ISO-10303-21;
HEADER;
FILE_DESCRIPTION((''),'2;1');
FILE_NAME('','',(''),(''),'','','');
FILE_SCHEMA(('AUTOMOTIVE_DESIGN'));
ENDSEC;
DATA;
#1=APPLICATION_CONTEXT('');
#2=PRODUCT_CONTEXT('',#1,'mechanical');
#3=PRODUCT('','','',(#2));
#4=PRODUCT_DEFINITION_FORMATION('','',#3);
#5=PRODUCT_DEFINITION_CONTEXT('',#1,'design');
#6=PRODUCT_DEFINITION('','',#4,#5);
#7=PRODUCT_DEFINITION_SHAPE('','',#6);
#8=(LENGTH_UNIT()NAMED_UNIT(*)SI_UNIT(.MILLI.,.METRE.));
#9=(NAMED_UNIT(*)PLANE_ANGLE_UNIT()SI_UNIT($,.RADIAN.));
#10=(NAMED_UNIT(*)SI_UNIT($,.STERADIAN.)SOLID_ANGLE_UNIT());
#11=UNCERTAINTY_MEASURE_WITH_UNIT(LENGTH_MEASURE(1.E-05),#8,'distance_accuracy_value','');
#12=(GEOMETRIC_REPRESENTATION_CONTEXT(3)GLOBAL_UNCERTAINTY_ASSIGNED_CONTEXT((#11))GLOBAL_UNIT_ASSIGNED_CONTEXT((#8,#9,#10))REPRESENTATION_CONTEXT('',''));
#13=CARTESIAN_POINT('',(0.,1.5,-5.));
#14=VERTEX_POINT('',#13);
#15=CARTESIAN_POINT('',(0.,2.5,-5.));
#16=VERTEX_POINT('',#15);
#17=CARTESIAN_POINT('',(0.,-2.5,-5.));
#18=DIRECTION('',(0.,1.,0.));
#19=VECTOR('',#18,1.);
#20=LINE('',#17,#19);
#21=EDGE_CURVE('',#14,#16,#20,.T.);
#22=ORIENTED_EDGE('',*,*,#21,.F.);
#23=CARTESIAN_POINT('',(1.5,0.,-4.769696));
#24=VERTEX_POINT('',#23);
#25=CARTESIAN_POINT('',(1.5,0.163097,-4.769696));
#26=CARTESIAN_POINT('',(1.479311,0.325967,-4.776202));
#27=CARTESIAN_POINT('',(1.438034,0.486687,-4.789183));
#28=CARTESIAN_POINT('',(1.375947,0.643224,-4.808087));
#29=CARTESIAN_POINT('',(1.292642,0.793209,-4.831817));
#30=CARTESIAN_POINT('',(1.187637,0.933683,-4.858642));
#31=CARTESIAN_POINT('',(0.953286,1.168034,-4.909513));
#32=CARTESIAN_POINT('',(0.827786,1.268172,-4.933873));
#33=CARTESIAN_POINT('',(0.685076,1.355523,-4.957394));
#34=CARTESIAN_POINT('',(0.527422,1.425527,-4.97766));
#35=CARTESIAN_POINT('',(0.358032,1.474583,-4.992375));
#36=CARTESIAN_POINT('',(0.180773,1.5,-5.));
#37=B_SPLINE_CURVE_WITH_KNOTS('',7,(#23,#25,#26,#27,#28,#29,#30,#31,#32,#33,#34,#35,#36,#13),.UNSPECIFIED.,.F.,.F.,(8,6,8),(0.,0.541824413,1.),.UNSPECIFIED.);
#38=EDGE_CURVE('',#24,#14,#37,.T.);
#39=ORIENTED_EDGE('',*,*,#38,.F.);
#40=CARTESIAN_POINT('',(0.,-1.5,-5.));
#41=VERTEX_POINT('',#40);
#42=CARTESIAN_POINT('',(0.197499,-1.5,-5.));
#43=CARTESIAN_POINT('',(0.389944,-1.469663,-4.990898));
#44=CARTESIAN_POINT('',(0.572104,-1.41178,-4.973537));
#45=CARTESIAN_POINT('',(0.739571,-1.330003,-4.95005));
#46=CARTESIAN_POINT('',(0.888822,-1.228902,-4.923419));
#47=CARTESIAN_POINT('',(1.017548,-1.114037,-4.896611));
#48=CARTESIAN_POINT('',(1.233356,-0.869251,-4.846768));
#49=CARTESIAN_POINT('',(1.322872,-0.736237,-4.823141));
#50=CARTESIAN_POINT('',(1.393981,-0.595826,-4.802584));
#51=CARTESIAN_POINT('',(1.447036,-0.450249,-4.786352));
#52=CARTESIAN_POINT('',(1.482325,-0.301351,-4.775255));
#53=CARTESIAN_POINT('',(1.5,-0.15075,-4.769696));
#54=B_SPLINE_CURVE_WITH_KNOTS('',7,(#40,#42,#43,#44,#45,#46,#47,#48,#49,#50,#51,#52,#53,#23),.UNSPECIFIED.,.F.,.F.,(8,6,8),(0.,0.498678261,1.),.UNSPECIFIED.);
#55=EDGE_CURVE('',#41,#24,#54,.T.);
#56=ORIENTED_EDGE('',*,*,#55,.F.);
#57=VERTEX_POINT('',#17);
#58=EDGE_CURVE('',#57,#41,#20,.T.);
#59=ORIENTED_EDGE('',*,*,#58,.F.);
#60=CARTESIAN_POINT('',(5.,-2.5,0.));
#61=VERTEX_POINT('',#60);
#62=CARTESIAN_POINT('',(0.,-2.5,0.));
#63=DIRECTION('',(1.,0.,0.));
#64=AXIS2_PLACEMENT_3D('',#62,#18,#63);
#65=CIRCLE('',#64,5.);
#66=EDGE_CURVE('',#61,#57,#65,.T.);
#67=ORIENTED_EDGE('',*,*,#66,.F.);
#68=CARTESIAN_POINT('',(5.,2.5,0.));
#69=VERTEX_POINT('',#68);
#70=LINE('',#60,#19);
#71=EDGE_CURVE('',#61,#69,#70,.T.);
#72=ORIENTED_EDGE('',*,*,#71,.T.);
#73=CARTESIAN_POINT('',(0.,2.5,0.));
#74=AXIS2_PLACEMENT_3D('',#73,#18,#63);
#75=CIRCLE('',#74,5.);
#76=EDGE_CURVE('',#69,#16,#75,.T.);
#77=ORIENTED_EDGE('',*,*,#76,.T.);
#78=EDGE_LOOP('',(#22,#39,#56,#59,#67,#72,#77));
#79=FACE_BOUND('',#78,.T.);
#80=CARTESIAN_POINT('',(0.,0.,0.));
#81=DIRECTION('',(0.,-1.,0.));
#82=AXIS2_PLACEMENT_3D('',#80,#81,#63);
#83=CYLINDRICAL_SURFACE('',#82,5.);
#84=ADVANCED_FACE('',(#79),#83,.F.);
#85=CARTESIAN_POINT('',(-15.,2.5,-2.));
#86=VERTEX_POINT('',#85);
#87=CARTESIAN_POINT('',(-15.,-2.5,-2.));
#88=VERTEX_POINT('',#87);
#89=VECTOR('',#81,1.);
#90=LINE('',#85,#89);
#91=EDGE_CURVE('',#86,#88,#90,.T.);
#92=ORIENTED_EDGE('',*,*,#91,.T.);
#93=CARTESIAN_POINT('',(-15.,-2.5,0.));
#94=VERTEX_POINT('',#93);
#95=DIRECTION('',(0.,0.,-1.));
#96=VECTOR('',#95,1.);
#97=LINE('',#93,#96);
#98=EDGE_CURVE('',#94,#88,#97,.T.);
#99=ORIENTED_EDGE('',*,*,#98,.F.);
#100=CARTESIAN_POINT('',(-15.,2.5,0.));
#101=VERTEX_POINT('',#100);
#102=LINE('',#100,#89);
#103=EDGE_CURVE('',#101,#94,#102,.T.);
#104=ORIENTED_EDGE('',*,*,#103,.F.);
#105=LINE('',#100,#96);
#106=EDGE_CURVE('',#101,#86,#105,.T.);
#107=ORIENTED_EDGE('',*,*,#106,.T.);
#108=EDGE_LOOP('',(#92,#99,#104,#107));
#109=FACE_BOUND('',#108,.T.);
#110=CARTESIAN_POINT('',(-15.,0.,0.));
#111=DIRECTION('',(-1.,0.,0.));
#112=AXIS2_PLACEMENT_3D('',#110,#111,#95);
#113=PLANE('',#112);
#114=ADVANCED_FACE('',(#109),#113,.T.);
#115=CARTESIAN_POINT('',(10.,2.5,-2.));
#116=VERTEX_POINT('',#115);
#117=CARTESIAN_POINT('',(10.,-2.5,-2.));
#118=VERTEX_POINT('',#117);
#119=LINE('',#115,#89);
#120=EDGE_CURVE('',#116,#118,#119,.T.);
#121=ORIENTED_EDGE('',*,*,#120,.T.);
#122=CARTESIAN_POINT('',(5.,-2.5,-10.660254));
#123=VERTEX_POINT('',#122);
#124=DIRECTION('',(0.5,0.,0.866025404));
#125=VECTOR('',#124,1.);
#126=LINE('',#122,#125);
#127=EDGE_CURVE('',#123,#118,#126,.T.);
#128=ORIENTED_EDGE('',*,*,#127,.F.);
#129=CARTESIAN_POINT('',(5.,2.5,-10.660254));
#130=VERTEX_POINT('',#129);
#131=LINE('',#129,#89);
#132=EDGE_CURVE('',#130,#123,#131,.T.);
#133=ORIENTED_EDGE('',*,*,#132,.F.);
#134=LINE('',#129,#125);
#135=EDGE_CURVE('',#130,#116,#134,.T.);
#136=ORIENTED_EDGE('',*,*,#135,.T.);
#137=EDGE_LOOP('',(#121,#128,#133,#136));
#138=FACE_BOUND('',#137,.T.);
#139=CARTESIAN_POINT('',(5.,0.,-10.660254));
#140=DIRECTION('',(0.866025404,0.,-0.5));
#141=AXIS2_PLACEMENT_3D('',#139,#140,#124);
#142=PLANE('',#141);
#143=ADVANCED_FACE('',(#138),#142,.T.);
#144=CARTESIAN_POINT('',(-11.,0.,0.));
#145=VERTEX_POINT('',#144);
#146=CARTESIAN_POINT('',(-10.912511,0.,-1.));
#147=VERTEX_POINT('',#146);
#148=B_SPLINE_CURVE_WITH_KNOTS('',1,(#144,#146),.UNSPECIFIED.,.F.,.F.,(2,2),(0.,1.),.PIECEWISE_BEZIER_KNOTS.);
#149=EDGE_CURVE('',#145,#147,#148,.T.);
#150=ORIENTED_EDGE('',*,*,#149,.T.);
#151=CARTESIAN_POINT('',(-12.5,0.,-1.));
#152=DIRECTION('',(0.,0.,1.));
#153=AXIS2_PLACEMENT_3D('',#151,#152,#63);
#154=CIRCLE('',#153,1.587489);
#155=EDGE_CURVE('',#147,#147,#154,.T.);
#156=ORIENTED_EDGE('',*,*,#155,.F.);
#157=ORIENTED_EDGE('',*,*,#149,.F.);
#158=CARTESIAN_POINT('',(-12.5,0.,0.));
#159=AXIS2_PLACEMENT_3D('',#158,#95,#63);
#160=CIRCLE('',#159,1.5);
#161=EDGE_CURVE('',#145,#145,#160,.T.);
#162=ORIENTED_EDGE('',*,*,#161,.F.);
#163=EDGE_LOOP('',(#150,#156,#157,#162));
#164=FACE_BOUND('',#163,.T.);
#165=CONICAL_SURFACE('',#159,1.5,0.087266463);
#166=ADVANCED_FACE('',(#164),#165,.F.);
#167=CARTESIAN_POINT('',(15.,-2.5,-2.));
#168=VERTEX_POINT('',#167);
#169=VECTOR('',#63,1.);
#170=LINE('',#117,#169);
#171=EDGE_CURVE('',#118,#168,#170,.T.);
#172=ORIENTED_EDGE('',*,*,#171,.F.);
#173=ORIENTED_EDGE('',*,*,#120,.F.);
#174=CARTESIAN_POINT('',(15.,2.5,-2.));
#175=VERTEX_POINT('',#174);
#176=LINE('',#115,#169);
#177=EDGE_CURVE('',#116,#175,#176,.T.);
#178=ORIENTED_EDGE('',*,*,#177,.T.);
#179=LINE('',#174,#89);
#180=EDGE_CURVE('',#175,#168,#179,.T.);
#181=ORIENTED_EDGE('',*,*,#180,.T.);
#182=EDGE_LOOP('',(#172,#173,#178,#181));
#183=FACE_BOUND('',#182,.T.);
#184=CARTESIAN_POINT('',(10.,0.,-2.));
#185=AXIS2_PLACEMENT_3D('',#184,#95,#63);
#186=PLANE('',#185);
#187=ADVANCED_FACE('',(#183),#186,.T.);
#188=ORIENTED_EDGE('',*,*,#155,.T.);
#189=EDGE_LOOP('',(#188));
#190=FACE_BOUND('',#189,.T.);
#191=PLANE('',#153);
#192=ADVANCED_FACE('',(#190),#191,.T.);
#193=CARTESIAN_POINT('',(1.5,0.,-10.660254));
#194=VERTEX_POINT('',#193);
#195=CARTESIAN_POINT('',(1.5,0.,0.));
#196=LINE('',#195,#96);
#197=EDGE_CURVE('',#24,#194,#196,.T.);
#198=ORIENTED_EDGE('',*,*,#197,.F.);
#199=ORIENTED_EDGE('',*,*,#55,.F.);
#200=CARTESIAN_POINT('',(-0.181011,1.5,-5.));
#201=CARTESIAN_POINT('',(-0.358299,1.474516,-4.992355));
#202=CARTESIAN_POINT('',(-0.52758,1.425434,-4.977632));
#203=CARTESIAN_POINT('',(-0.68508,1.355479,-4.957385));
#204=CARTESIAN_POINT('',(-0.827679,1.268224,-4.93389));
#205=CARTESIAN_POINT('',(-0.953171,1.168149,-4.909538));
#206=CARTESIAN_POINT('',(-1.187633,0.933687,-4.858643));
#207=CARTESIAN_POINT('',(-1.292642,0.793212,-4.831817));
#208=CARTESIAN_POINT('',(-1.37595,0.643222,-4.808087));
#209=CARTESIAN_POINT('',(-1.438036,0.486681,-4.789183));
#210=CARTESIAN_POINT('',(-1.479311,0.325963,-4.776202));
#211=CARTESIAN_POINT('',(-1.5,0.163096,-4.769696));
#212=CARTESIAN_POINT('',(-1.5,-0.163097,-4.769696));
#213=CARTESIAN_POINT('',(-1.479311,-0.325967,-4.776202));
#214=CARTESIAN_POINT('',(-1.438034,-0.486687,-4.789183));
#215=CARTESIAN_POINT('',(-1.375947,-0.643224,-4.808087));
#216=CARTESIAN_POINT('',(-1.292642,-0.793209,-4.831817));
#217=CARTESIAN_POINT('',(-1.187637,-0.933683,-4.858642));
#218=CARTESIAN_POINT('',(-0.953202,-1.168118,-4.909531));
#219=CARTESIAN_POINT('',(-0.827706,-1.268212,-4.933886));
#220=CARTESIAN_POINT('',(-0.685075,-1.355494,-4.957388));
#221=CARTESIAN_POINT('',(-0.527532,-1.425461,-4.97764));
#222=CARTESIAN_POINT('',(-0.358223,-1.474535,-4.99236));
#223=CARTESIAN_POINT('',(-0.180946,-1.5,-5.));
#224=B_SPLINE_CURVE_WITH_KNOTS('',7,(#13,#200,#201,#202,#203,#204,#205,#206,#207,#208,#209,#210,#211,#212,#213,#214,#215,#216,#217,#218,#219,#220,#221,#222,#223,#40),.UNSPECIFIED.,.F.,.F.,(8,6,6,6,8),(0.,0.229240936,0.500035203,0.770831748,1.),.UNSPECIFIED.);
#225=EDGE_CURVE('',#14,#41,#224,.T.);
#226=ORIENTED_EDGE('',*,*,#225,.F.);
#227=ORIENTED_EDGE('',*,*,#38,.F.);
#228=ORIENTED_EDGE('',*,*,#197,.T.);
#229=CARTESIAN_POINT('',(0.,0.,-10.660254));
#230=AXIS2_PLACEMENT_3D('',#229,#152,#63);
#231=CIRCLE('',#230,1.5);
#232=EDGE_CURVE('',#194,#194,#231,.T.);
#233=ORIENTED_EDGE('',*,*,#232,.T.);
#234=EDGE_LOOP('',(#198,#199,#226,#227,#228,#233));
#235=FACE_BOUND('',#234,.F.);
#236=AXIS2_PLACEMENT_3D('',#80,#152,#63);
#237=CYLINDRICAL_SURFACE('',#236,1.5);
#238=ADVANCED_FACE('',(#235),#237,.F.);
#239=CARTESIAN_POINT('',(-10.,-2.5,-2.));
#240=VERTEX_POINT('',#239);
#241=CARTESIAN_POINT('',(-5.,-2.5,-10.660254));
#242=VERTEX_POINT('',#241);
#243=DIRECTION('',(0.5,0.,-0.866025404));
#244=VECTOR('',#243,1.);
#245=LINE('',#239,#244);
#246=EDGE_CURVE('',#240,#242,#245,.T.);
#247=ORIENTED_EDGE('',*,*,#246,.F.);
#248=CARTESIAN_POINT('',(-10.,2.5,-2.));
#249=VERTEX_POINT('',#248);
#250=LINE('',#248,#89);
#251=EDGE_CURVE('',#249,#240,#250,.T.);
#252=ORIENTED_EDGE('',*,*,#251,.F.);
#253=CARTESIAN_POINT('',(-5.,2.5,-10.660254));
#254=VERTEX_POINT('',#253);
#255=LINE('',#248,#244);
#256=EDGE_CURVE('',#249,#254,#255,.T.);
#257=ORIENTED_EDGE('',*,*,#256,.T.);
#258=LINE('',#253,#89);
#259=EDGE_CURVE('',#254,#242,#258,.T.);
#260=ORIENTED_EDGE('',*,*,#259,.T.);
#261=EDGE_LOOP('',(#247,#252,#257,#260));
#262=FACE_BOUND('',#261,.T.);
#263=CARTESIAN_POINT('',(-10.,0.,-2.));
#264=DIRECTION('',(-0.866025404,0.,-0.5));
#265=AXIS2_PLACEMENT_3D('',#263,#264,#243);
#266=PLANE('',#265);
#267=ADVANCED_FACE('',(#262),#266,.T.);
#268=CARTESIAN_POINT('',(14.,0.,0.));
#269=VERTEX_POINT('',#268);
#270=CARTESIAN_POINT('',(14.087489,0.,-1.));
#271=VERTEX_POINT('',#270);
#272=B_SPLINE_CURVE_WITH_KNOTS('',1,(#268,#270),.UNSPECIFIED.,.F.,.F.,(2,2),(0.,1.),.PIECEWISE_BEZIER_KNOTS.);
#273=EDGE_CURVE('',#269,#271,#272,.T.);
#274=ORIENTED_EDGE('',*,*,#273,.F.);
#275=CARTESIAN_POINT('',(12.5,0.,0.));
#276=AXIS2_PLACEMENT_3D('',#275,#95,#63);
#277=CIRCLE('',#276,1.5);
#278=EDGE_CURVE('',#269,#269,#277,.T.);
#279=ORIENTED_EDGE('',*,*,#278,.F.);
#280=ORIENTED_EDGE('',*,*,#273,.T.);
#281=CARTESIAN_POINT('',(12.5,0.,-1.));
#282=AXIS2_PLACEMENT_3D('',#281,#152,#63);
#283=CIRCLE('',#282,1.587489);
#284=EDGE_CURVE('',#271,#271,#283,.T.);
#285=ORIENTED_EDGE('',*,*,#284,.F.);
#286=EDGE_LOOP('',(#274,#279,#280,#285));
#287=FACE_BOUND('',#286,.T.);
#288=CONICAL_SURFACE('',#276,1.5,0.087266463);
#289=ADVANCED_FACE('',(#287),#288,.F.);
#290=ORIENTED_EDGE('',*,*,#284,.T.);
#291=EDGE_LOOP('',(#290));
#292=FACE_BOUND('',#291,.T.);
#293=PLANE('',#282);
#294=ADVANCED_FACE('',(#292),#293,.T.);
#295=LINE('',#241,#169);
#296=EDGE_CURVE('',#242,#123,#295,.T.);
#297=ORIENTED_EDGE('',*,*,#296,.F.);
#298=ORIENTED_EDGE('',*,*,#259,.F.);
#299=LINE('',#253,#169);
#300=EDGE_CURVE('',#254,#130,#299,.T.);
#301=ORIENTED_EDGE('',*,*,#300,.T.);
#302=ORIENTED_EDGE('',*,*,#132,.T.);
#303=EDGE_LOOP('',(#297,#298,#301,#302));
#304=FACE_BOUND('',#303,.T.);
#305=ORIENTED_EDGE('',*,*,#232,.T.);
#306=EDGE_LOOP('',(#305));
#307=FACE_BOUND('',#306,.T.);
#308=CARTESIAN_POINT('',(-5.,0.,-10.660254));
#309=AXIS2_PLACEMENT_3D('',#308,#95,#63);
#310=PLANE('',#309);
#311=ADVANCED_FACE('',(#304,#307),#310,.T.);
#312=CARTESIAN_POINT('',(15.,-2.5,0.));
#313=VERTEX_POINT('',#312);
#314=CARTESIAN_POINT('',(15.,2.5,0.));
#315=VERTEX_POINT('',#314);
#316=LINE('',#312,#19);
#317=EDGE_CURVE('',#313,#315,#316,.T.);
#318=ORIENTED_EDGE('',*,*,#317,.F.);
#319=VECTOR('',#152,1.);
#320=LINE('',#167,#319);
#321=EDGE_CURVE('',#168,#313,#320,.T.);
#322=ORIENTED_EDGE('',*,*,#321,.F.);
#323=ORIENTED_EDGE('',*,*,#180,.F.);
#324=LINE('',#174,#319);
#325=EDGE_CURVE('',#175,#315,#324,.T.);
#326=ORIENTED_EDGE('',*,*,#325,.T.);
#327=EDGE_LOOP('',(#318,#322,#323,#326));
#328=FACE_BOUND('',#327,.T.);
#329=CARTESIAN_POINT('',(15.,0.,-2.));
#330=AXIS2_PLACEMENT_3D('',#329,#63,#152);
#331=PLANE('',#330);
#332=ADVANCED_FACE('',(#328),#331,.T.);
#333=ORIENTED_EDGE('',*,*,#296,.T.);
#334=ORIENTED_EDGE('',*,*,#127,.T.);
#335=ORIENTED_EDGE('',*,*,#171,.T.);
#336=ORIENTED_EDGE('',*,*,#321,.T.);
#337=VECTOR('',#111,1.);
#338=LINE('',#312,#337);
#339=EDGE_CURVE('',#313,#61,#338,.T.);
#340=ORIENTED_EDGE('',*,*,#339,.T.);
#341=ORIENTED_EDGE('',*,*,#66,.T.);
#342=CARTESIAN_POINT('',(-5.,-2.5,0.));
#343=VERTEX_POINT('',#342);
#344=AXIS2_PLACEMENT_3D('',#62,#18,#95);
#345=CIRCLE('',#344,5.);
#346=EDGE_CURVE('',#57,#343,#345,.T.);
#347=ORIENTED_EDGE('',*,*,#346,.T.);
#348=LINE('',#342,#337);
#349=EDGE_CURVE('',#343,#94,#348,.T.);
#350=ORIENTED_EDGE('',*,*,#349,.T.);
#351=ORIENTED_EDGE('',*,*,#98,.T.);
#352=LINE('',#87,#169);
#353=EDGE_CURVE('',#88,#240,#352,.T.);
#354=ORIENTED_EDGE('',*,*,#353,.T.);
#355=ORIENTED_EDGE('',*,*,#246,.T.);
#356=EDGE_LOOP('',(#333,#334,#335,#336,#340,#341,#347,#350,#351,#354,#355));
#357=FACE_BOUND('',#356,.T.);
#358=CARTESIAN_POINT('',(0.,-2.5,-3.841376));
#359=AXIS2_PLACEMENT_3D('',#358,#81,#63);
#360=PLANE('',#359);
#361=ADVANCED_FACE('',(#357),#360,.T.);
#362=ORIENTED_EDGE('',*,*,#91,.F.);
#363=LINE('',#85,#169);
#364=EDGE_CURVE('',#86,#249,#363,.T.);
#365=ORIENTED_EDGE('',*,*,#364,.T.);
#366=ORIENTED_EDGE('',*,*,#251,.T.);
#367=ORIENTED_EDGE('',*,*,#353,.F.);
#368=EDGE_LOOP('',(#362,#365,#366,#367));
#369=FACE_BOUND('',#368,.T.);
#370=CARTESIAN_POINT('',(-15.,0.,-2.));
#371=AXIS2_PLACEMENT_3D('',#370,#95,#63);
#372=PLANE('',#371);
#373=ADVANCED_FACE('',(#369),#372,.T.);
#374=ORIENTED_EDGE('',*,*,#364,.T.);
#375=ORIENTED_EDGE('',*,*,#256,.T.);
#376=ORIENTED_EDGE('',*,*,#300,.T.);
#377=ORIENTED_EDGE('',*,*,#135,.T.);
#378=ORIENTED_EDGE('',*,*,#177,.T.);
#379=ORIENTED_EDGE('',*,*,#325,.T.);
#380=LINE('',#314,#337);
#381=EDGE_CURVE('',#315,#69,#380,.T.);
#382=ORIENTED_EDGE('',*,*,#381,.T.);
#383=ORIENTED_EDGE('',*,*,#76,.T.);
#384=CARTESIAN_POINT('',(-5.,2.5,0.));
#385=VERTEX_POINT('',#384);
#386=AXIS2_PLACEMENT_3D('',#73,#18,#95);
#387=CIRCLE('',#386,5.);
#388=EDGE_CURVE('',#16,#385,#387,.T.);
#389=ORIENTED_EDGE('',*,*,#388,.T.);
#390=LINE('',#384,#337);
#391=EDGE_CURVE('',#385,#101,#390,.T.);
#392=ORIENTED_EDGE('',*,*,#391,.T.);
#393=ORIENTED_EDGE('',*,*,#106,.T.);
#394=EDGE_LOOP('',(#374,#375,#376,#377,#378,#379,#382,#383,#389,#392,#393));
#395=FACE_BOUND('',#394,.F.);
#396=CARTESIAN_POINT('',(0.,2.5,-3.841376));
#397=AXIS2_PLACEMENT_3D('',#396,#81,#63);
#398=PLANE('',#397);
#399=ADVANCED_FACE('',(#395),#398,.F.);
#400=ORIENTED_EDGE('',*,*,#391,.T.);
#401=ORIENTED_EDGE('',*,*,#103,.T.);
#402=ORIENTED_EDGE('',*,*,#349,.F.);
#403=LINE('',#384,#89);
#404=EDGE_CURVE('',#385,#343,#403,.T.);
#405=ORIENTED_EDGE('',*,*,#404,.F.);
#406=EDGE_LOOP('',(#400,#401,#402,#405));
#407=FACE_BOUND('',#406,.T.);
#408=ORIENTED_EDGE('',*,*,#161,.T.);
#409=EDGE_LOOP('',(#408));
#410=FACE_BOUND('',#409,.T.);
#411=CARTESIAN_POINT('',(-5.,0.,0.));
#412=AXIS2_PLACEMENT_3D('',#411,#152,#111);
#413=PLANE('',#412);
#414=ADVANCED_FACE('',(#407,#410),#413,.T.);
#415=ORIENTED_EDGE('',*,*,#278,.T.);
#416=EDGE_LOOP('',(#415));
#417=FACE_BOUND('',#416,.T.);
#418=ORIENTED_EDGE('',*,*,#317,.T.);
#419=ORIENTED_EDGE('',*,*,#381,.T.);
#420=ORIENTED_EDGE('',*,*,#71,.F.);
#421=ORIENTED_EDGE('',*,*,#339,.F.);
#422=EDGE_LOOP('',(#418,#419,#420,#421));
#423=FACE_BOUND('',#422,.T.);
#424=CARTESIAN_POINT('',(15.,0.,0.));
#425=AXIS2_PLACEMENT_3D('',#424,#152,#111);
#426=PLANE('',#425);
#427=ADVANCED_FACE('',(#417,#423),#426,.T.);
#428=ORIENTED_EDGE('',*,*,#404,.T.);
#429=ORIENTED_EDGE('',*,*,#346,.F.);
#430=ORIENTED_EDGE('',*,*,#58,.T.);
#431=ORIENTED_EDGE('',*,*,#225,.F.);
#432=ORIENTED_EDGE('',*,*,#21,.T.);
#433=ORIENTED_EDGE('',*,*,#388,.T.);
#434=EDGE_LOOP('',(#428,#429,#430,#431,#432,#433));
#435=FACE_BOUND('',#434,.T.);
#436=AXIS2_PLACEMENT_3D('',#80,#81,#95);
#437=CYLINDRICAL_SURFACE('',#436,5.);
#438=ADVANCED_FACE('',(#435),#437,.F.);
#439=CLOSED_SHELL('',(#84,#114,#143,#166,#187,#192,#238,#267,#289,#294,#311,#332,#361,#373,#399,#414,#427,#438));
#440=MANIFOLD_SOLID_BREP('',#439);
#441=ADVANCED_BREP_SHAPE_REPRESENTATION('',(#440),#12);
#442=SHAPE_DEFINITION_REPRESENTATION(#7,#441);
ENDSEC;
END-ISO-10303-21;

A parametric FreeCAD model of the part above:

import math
import FreeCAD as App
import Part
import Sketcher

V = App.Vector
Q = App.Units.Quantity

doc = App.newDocument("Part")
body = doc.addObject("PartDesign::Body", "Body")

# Sketch on XZ plane
sketch1 = body.newObject("Sketcher::SketchObject", "Sketch")
sketch1.AttachmentSupport = (doc.getObject("XZ_Plane"), [""])
sketch1.MapMode = "FlatFace"
sketch1.addGeometry([
    Part.ArcOfCircle(Part.Circle(V(0, 0, 0), V(0, 0, 1), 5), math.radians(180), math.radians(270)),  # 0
    Part.LineSegment(V(-5, 0, 0), V(-15, 0, 0)),  # 1
    Part.LineSegment(V(-15, 0, 0), V(-15, -2, 0)),  # 2
    Part.LineSegment(V(-15, -2, 0), V(-10, -2, 0)),  # 3
    Part.LineSegment(V(-10, -2, 0), V(-5, -10.7, 0)),  # 4
    Part.LineSegment(V(-5, -10.7, 0), V(5, -10.7, 0)),  # 5
    Part.LineSegment(V(5, -10.7, 0), V(10, -2, 0)),  # 6
    Part.LineSegment(V(10, -2, 0), V(15, -2, 0)),  # 7
    Part.LineSegment(V(15, -2, 0), V(15, 0, 0)),  # 8
    Part.LineSegment(V(15, 0, 0), V(5, 0, 0)),  # 9
    Part.ArcOfCircle(Part.Circle(V(0, 0, 0), V(0, 0, 1), 5), math.radians(-90), math.radians(0)),  # 10
], False)
sketch1.addConstraint([
    Sketcher.Constraint("Coincident", 0, 1, 1, 1),
    Sketcher.Constraint("Coincident", 1, 2, 2, 1),
    Sketcher.Constraint("Coincident", 2, 2, 3, 1),
    Sketcher.Constraint("Coincident", 3, 2, 4, 1),
    Sketcher.Constraint("Coincident", 4, 2, 5, 1),
    Sketcher.Constraint("Coincident", 5, 2, 6, 1),
    Sketcher.Constraint("Coincident", 6, 2, 7, 1),
    Sketcher.Constraint("Coincident", 7, 2, 8, 1),
    Sketcher.Constraint("Coincident", 8, 2, 9, 1),
    Sketcher.Constraint("Coincident", 9, 2, 10, 2),
    Sketcher.Constraint("Tangent", 10, 1, 0, 2),
    Sketcher.Constraint("Horizontal", 1),
    Sketcher.Constraint("Vertical", 2),
    Sketcher.Constraint("Horizontal", 3),
    Sketcher.Constraint("Horizontal", 5),
    Sketcher.Constraint("Horizontal", 7),
    Sketcher.Constraint("Vertical", 8),
    Sketcher.Constraint("Horizontal", 9),
    Sketcher.Constraint("Coincident", 0, 3, -1, 1),
    Sketcher.Constraint("Equal", 0, 10),
    Sketcher.Constraint("Symmetric", 1, 2, 8, 2, -1, 1),
    Sketcher.Constraint("Symmetric", 3, 2, 6, 2, -2),
    Sketcher.Constraint("PointOnObject", 0, 1, -1),
    Sketcher.Constraint("PointOnObject", 10, 1, -2),
    Sketcher.Constraint("Vertical", 0, 1, 4, 2),
    Sketcher.Constraint("Vertical", 5, 2, 9, 2),
    Sketcher.Constraint("Equal", 1, 5),
    Sketcher.Constraint("Radius", 0, 5.0),
    Sketcher.Constraint("DistanceX", 3, 1, 3, 2, 5.0),
    Sketcher.Constraint("DistanceY", 2, 2, 2, 1, 2.0),
    Sketcher.Constraint("Angle", 4, Q("-60 deg")),
])
pad1 = body.newObject("PartDesign::Pad", "Pad")
pad1.Profile = sketch1
pad1.Length = 5
pad1.Midplane = True

# Sketch on XY plane
sketch2 = body.newObject("Sketcher::SketchObject", "Sketch001")
sketch2.AttachmentSupport = (doc.getObject("XY_Plane"), [""])
sketch2.MapMode = "FlatFace"
sketch2.addGeometry([
    Part.Circle(V(-12.5, 0, 0), V(0, 0, 1), 1.5),
    Part.Circle(V(12.5, 0, 0), V(0, 0, 1), 1.5),
], False)
sketch2.addConstraint([
    Sketcher.Constraint("Equal", 0, 1),
    Sketcher.Constraint("Symmetric", 0, 3, 1, 3, -1, 1),
    Sketcher.Constraint("PointOnObject", 0, 3, -1),
    Sketcher.Constraint("Diameter", 0, 3.0),
    Sketcher.Constraint("DistanceX", 0, 3, 1, 3, 25.0),
])
pocket1 = body.newObject("PartDesign::Pocket", "Pocket")
pocket1.Profile = sketch2
pocket1.Length = 1
pocket1.TaperAngle = 5

# Sketch on XY plane
sketch3 = body.newObject("Sketcher::SketchObject", "Sketch002")
sketch3.AttachmentSupport = (doc.getObject("XY_Plane"), [""])
sketch3.MapMode = "FlatFace"
sketch3.addGeometry(Part.Circle(V(0, 0, 0), V(0, 0, 1), 1.5), False)
sketch3.addConstraint([
    Sketcher.Constraint("Coincident", 0, 3, -1, 1),
    Sketcher.Constraint("Diameter", 0, 3.0),
])
pocket2 = body.newObject("PartDesign::Pocket", "Pocket001")
pocket2.Profile = sketch3
pocket2.Length = 25

doc.recompute()
